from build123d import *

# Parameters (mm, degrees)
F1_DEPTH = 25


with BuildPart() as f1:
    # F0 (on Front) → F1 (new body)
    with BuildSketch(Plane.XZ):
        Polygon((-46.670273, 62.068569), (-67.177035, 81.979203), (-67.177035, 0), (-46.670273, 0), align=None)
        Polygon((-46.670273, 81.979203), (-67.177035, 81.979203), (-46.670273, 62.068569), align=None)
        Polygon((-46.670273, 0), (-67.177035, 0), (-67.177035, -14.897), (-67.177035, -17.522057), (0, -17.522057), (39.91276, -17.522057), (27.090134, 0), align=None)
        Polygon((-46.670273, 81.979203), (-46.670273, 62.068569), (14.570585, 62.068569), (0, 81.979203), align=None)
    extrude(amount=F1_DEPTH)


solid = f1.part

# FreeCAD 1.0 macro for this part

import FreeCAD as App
import Part
import Sketcher
from FreeCAD import Vector
Q = App.Units.Quantity


def add_polygon(sketch, points):
    """Adds a closed chain of lines whose ends are joined by coincident constraints."""
    first, n = sketch.GeometryCount, len(points)
    for a, b in zip(points, points[1:] + points[:1]):
        sketch.addGeometry(Part.LineSegment(App.Vector(*a, 0), App.Vector(*b, 0)), False)
    for i in range(n):
        sketch.addConstraint(Sketcher.Constraint("Coincident", first + i, 2, first + (i + 1) % n, 1))

doc = App.newDocument("Part")
body = doc.addObject("PartDesign::Body", "Body")

sketch1 = body.newObject("Sketcher::SketchObject", "Sketch")
sketch1.AttachmentSupport = (doc.getObject("XZ_Plane"), [""])
sketch1.MapMode = "FlatFace"
add_polygon(sketch1, [(-67.177035, 81.979203), (-67.177035, -17.522057), (39.91276, -17.522057), (27.090134, 0), (-46.670273, 0), (-46.670273, 62.068569), (14.570585, 62.068569), (0, 81.979203)])
sketch1.addConstraint([
    Sketcher.Constraint("Vertical", 0),
    Sketcher.Constraint("Horizontal", 1),
    Sketcher.Constraint("Horizontal", 3),
    Sketcher.Constraint("Vertical", 4),
    Sketcher.Constraint("Horizontal", 5),
    Sketcher.Constraint("Horizontal", 7),
    Sketcher.Constraint("PointOnObject", 2, 2, -1),
    Sketcher.Constraint("PointOnObject", 6, 2, -2),
    Sketcher.Constraint("Parallel", 2, 6),
    Sketcher.Constraint("DistanceX", 5, 1, 5, 2, Q("61.240858 mm")),
    Sketcher.Constraint("DistanceY", 0, 2, 0, 1, Q("99.50126 mm")),
    Sketcher.Constraint("DistanceY", 4, 1, 4, 2, Q("62.068569 mm")),
    Sketcher.Constraint("Distance", 2, Q("21.71272 mm")),
    Sketcher.Constraint("Distance", 6, Q("24.672562 mm")),
    Sketcher.Constraint("DistanceX", 1, 1, 1, 2, Q("107.089795 mm")),
    Sketcher.Constraint("DistanceX", 3, 2, 3, 1, Q("73.760407 mm")),
])
pad1 = body.newObject("PartDesign::Pad", "Pad")
pad1.Profile = sketch1
pad1.Length = 25

doc.recompute()
